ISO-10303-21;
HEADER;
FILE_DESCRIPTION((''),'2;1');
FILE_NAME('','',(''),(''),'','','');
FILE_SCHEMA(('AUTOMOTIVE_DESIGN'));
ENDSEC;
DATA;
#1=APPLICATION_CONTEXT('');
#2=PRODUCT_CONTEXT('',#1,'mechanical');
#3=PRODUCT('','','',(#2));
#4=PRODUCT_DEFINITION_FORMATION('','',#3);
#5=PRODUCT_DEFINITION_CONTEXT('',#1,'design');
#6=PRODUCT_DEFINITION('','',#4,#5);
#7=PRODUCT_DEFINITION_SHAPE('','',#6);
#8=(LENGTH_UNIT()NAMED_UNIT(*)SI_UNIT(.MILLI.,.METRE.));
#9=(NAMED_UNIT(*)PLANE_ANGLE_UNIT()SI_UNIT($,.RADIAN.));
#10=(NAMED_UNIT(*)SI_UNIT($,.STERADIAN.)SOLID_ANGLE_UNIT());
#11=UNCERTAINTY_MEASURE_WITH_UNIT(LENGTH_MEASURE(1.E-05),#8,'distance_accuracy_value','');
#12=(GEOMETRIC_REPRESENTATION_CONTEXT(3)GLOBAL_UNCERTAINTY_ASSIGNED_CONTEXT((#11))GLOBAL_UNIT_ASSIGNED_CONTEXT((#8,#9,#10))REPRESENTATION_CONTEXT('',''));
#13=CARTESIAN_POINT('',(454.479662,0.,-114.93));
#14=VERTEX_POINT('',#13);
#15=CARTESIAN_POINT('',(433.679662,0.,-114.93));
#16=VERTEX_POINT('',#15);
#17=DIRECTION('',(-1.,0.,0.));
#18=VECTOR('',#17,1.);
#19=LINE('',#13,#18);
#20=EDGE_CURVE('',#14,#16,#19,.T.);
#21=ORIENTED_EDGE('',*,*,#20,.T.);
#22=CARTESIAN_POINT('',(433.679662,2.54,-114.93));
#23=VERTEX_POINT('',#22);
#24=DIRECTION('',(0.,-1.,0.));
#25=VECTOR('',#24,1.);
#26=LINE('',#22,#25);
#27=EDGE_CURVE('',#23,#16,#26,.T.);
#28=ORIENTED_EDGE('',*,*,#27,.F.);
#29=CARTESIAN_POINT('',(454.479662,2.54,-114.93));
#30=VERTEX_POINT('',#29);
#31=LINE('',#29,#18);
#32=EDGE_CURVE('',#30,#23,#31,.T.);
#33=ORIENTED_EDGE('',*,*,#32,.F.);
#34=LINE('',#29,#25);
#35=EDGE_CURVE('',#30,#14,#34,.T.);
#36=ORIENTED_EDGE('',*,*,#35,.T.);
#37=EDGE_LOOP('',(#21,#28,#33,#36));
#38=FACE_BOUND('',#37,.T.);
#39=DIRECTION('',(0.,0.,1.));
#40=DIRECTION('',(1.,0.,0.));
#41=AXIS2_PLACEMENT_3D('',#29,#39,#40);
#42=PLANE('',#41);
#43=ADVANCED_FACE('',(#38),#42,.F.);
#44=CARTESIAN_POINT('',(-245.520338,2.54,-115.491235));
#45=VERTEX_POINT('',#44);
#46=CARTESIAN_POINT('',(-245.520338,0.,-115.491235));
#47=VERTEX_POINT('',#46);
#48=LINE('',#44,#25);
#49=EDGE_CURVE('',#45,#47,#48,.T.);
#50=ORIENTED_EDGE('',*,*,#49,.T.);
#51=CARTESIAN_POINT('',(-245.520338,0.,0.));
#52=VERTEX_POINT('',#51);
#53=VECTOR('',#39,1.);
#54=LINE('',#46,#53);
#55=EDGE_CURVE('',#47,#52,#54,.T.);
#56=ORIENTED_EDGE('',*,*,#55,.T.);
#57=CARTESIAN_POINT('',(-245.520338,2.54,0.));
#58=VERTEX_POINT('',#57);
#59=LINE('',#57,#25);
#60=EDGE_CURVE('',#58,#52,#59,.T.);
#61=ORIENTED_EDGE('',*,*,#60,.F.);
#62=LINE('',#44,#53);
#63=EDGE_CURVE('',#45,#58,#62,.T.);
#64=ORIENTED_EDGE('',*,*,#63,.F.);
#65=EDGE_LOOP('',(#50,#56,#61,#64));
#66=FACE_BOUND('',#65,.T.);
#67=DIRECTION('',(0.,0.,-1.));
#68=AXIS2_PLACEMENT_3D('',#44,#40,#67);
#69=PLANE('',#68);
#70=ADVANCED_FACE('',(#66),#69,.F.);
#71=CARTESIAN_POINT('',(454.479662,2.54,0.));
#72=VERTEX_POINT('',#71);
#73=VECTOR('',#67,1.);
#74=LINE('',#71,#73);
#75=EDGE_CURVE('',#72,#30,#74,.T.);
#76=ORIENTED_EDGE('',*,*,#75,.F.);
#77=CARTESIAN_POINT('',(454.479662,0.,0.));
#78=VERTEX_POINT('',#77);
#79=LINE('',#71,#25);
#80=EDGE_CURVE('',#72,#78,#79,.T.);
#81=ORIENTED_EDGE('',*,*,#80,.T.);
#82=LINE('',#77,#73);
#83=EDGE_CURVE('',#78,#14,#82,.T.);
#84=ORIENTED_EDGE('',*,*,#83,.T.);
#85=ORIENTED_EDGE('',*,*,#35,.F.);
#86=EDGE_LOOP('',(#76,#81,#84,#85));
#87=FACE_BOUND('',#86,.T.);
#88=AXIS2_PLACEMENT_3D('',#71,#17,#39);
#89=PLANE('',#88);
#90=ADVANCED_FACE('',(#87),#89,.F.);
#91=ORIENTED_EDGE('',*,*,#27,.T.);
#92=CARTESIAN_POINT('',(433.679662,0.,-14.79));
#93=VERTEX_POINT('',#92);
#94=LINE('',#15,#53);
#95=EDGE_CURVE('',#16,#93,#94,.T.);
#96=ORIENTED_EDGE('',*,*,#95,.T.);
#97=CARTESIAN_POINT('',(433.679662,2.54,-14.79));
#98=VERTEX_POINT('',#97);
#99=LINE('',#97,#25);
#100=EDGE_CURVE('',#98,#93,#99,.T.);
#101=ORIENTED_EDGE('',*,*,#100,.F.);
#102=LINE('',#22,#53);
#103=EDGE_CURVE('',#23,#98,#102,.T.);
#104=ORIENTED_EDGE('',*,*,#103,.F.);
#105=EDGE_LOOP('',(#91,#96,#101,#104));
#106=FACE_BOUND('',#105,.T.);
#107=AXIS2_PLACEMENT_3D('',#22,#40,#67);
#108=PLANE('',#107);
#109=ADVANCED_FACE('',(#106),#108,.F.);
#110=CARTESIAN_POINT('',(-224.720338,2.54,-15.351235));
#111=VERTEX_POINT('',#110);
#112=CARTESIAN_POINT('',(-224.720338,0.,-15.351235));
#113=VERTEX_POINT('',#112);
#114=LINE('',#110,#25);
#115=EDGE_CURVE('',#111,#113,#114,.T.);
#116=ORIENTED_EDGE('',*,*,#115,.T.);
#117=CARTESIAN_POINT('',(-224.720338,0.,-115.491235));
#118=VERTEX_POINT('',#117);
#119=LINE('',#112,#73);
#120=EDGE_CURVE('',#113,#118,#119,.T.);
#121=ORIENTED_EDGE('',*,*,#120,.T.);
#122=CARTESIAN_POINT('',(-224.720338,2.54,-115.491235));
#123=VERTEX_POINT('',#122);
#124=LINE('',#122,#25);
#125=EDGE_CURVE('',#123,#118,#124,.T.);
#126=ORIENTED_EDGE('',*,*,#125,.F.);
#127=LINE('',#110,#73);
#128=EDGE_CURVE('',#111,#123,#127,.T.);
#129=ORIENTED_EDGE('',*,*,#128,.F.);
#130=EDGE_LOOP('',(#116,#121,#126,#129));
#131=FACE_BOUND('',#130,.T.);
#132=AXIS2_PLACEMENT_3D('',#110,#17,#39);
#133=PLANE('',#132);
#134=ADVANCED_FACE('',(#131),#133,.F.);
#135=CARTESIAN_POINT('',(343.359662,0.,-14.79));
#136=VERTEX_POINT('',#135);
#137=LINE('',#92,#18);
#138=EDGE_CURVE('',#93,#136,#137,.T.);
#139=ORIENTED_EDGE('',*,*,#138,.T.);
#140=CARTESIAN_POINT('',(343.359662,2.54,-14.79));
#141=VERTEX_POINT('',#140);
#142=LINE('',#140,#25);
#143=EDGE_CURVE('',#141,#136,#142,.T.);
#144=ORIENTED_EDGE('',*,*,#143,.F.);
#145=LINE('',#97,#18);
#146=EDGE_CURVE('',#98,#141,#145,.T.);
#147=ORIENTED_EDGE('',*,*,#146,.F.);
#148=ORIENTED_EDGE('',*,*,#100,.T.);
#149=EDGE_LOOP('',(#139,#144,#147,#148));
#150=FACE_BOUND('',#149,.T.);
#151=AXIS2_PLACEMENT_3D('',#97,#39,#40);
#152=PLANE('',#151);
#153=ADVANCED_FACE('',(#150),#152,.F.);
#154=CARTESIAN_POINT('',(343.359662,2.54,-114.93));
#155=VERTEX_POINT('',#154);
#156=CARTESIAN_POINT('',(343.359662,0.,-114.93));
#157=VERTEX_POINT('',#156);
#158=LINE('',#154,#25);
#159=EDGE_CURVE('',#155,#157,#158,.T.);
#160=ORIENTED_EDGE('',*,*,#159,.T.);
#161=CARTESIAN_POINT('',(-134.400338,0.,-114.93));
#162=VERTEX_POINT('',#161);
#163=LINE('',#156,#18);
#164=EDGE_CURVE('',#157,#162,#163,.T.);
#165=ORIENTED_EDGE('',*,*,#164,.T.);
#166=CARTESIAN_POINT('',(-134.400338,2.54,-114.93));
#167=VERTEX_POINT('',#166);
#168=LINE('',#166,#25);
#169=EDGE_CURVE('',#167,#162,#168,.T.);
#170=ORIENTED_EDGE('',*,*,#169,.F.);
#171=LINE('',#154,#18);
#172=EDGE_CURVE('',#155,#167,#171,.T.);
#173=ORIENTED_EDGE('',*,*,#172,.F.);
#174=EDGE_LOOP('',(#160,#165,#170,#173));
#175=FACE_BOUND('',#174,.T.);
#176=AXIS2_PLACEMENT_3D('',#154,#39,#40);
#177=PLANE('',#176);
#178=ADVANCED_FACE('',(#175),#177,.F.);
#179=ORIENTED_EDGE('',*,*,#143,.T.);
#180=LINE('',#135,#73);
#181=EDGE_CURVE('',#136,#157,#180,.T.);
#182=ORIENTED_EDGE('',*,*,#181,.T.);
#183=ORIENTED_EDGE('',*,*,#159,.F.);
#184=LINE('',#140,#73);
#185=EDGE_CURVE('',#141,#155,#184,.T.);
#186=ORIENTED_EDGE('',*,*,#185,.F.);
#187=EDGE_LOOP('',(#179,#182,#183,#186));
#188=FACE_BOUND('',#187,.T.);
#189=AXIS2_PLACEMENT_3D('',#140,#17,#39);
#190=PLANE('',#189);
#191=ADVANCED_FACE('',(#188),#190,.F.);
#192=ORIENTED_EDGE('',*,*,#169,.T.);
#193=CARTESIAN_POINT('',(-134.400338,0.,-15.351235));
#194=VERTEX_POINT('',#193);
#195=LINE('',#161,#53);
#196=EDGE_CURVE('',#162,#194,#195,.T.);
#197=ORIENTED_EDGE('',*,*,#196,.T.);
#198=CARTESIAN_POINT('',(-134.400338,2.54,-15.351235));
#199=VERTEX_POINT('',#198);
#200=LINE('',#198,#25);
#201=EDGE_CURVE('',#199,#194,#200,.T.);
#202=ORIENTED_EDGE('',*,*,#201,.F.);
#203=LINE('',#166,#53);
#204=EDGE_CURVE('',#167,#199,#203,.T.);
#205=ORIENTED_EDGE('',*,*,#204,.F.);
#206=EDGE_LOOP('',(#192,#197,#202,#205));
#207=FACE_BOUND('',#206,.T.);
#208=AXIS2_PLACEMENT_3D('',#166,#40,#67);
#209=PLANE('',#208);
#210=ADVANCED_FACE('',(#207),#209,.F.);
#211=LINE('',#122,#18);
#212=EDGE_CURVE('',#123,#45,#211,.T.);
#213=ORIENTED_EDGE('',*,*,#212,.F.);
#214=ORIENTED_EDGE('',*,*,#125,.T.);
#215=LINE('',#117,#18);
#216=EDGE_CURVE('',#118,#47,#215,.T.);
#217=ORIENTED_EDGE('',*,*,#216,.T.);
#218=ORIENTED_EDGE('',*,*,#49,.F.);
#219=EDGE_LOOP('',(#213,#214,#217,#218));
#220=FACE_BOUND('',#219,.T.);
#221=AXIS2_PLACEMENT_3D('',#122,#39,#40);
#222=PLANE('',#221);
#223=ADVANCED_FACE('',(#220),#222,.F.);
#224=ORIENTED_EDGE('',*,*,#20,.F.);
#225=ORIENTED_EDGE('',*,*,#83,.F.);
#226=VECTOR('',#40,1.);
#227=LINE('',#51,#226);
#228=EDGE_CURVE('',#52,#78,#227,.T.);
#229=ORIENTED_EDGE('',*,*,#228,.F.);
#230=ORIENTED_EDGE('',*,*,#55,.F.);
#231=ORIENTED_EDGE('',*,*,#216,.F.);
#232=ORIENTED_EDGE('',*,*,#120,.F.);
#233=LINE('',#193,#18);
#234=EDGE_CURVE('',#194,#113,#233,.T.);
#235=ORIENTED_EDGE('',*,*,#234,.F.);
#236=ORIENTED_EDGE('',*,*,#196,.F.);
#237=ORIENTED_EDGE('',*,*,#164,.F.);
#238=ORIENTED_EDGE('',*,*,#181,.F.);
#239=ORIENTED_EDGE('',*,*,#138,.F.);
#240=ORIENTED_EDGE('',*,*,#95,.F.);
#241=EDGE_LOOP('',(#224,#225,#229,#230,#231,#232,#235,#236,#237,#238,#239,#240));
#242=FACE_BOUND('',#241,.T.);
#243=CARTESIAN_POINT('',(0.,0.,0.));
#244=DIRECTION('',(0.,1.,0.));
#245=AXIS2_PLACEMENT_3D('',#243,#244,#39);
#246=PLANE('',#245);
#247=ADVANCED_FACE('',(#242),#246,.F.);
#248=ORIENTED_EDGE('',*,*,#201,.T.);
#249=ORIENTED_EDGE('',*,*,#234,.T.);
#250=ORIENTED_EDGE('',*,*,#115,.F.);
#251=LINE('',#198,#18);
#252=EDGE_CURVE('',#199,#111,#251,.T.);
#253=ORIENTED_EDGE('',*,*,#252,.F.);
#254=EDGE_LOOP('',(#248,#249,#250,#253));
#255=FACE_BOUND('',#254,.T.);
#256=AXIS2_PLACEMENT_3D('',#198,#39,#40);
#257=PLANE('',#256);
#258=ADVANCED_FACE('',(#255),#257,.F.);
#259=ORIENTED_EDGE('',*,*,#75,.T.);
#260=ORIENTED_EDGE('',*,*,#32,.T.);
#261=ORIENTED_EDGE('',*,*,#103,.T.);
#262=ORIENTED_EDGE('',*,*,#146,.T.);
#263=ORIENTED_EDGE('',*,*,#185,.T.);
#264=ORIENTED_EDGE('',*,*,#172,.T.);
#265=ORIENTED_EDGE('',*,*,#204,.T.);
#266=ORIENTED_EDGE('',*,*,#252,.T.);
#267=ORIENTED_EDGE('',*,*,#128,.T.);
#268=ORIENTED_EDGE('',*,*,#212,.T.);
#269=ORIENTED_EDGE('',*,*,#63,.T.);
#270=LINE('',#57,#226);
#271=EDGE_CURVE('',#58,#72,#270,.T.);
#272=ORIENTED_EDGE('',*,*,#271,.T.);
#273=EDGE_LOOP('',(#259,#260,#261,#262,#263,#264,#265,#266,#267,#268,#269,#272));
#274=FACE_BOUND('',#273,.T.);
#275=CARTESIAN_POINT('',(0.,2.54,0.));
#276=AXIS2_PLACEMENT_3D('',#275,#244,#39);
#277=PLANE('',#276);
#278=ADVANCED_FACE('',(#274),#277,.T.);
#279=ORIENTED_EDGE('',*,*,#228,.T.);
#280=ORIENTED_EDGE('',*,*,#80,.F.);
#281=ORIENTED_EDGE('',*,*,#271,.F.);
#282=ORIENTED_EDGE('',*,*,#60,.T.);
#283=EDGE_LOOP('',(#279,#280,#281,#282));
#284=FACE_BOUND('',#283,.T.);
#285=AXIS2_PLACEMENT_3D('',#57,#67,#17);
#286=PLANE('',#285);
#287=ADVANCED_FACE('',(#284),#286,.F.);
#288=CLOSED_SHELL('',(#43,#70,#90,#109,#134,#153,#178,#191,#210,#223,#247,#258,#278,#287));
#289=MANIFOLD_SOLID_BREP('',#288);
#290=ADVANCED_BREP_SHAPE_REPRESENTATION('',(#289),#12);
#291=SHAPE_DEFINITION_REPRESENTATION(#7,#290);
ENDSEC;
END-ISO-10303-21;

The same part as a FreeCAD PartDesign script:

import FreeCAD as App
import Part
import Sketcher

V = App.Vector
Q = App.Units.Quantity

doc = App.newDocument("Part")
body = doc.addObject("PartDesign::Body", "Body")

# Sketch on XZ plane
sketch1 = body.newObject("Sketcher::SketchObject", "Sketch")
sketch1.AttachmentSupport = (doc.getObject("XZ_Plane"), [""])
sketch1.MapMode = "FlatFace"
sketch1.addGeometry([
    Part.LineSegment(V(-245.520338, 0, 0), V(454.479662, 0, 0)),  # 0
    Part.LineSegment(V(454.479662, 0, 0), V(454.479662, -114.93, 0)),  # 1
    Part.LineSegment(V(454.479662, -114.93, 0), V(433.679662, -114.93, 0)),  # 2
    Part.LineSegment(V(433.679662, -114.93, 0), V(433.679662, -14.79, 0)),  # 3
    Part.LineSegment(V(433.679662, -14.79, 0), V(343.359662, -14.79, 0)),  # 4
    Part.LineSegment(V(343.359662, -14.79, 0), V(343.359662, -114.93, 0)),  # 5
    Part.LineSegment(V(343.359662, -114.93, 0), V(-134.400338, -114.93, 0)),  # 6
    Part.LineSegment(V(-134.400338, -114.93, 0), V(-134.400338, -15.351235, 0)),  # 7
    Part.LineSegment(V(-134.400338, -15.351235, 0), V(-224.720338, -15.351235, 0)),  # 8
    Part.LineSegment(V(-224.720338, -15.351235, 0), V(-224.720338, -115.491235, 0)),  # 9
    Part.LineSegment(V(-224.720338, -115.491235, 0), V(-245.520338, -115.491235, 0)),  # 10
    Part.LineSegment(V(-245.520338, -115.491235, 0), V(-245.520338, 0, 0)),  # 11
], False)
sketch1.addConstraint([
    Sketcher.Constraint("Coincident", 0, 2, 1, 1),
    Sketcher.Constraint("Coincident", 1, 2, 2, 1),
    Sketcher.Constraint("Coincident", 2, 2, 3, 1),
    Sketcher.Constraint("Coincident", 3, 2, 4, 1),
    Sketcher.Constraint("Coincident", 4, 2, 5, 1),
    Sketcher.Constraint("Coincident", 5, 2, 6, 1),
    Sketcher.Constraint("Coincident", 6, 2, 7, 1),
    Sketcher.Constraint("Coincident", 7, 2, 8, 1),
    Sketcher.Constraint("Coincident", 8, 2, 9, 1),
    Sketcher.Constraint("Coincident", 9, 2, 10, 1),
    Sketcher.Constraint("Coincident", 10, 2, 11, 1),
    Sketcher.Constraint("Coincident", 11, 2, 0, 1),
    Sketcher.Constraint("Horizontal", 0),
    Sketcher.Constraint("Vertical", 1),
    Sketcher.Constraint("Horizontal", 2),
    Sketcher.Constraint("Vertical", 3),
    Sketcher.Constraint("Horizontal", 4),
    Sketcher.Constraint("Vertical", 5),
    Sketcher.Constraint("Horizontal", 6),
    Sketcher.Constraint("Vertical", 7),
    Sketcher.Constraint("Horizontal", 8),
    Sketcher.Constraint("Vertical", 9),
    Sketcher.Constraint("Horizontal", 10),
    Sketcher.Constraint("Vertical", 11),
    Sketcher.Constraint("PointOnObject", 0, 2, -1),
    Sketcher.Constraint("Horizontal", 2, 2, 5, 2),
    Sketcher.Constraint("Equal", 4, 8),
    Sketcher.Constraint("Equal", 2, 10),
    Sketcher.Constraint("Equal", 5, 9),
    Sketcher.Constraint("DistanceX", 0, 1, 0, 2, Q("700 mm")),
    Sketcher.Constraint("DistanceX", 2, 2, 2, 1, Q("20.8 mm")),
    Sketcher.Constraint("DistanceX", 4, 2, 4, 1, Q("90.32 mm")),
    Sketcher.Constraint("DistanceY", 1, 2, 1, 1, Q("114.93 mm")),
    Sketcher.Constraint("DistanceY", 3, 1, 3, 2, Q("100.14 mm")),
    Sketcher.Constraint("DistanceY", 7, 1, 7, 2, Q("99.578765 mm")),
    Sketcher.Constraint("DistanceX", -1, 1, 0, 2, Q("454.479662 mm")),
])
pad1 = body.newObject("PartDesign::Pad", "Pad")
pad1.Profile = sketch1
pad1.Length = 2.54
pad1.Reversed = True

doc.recompute()
